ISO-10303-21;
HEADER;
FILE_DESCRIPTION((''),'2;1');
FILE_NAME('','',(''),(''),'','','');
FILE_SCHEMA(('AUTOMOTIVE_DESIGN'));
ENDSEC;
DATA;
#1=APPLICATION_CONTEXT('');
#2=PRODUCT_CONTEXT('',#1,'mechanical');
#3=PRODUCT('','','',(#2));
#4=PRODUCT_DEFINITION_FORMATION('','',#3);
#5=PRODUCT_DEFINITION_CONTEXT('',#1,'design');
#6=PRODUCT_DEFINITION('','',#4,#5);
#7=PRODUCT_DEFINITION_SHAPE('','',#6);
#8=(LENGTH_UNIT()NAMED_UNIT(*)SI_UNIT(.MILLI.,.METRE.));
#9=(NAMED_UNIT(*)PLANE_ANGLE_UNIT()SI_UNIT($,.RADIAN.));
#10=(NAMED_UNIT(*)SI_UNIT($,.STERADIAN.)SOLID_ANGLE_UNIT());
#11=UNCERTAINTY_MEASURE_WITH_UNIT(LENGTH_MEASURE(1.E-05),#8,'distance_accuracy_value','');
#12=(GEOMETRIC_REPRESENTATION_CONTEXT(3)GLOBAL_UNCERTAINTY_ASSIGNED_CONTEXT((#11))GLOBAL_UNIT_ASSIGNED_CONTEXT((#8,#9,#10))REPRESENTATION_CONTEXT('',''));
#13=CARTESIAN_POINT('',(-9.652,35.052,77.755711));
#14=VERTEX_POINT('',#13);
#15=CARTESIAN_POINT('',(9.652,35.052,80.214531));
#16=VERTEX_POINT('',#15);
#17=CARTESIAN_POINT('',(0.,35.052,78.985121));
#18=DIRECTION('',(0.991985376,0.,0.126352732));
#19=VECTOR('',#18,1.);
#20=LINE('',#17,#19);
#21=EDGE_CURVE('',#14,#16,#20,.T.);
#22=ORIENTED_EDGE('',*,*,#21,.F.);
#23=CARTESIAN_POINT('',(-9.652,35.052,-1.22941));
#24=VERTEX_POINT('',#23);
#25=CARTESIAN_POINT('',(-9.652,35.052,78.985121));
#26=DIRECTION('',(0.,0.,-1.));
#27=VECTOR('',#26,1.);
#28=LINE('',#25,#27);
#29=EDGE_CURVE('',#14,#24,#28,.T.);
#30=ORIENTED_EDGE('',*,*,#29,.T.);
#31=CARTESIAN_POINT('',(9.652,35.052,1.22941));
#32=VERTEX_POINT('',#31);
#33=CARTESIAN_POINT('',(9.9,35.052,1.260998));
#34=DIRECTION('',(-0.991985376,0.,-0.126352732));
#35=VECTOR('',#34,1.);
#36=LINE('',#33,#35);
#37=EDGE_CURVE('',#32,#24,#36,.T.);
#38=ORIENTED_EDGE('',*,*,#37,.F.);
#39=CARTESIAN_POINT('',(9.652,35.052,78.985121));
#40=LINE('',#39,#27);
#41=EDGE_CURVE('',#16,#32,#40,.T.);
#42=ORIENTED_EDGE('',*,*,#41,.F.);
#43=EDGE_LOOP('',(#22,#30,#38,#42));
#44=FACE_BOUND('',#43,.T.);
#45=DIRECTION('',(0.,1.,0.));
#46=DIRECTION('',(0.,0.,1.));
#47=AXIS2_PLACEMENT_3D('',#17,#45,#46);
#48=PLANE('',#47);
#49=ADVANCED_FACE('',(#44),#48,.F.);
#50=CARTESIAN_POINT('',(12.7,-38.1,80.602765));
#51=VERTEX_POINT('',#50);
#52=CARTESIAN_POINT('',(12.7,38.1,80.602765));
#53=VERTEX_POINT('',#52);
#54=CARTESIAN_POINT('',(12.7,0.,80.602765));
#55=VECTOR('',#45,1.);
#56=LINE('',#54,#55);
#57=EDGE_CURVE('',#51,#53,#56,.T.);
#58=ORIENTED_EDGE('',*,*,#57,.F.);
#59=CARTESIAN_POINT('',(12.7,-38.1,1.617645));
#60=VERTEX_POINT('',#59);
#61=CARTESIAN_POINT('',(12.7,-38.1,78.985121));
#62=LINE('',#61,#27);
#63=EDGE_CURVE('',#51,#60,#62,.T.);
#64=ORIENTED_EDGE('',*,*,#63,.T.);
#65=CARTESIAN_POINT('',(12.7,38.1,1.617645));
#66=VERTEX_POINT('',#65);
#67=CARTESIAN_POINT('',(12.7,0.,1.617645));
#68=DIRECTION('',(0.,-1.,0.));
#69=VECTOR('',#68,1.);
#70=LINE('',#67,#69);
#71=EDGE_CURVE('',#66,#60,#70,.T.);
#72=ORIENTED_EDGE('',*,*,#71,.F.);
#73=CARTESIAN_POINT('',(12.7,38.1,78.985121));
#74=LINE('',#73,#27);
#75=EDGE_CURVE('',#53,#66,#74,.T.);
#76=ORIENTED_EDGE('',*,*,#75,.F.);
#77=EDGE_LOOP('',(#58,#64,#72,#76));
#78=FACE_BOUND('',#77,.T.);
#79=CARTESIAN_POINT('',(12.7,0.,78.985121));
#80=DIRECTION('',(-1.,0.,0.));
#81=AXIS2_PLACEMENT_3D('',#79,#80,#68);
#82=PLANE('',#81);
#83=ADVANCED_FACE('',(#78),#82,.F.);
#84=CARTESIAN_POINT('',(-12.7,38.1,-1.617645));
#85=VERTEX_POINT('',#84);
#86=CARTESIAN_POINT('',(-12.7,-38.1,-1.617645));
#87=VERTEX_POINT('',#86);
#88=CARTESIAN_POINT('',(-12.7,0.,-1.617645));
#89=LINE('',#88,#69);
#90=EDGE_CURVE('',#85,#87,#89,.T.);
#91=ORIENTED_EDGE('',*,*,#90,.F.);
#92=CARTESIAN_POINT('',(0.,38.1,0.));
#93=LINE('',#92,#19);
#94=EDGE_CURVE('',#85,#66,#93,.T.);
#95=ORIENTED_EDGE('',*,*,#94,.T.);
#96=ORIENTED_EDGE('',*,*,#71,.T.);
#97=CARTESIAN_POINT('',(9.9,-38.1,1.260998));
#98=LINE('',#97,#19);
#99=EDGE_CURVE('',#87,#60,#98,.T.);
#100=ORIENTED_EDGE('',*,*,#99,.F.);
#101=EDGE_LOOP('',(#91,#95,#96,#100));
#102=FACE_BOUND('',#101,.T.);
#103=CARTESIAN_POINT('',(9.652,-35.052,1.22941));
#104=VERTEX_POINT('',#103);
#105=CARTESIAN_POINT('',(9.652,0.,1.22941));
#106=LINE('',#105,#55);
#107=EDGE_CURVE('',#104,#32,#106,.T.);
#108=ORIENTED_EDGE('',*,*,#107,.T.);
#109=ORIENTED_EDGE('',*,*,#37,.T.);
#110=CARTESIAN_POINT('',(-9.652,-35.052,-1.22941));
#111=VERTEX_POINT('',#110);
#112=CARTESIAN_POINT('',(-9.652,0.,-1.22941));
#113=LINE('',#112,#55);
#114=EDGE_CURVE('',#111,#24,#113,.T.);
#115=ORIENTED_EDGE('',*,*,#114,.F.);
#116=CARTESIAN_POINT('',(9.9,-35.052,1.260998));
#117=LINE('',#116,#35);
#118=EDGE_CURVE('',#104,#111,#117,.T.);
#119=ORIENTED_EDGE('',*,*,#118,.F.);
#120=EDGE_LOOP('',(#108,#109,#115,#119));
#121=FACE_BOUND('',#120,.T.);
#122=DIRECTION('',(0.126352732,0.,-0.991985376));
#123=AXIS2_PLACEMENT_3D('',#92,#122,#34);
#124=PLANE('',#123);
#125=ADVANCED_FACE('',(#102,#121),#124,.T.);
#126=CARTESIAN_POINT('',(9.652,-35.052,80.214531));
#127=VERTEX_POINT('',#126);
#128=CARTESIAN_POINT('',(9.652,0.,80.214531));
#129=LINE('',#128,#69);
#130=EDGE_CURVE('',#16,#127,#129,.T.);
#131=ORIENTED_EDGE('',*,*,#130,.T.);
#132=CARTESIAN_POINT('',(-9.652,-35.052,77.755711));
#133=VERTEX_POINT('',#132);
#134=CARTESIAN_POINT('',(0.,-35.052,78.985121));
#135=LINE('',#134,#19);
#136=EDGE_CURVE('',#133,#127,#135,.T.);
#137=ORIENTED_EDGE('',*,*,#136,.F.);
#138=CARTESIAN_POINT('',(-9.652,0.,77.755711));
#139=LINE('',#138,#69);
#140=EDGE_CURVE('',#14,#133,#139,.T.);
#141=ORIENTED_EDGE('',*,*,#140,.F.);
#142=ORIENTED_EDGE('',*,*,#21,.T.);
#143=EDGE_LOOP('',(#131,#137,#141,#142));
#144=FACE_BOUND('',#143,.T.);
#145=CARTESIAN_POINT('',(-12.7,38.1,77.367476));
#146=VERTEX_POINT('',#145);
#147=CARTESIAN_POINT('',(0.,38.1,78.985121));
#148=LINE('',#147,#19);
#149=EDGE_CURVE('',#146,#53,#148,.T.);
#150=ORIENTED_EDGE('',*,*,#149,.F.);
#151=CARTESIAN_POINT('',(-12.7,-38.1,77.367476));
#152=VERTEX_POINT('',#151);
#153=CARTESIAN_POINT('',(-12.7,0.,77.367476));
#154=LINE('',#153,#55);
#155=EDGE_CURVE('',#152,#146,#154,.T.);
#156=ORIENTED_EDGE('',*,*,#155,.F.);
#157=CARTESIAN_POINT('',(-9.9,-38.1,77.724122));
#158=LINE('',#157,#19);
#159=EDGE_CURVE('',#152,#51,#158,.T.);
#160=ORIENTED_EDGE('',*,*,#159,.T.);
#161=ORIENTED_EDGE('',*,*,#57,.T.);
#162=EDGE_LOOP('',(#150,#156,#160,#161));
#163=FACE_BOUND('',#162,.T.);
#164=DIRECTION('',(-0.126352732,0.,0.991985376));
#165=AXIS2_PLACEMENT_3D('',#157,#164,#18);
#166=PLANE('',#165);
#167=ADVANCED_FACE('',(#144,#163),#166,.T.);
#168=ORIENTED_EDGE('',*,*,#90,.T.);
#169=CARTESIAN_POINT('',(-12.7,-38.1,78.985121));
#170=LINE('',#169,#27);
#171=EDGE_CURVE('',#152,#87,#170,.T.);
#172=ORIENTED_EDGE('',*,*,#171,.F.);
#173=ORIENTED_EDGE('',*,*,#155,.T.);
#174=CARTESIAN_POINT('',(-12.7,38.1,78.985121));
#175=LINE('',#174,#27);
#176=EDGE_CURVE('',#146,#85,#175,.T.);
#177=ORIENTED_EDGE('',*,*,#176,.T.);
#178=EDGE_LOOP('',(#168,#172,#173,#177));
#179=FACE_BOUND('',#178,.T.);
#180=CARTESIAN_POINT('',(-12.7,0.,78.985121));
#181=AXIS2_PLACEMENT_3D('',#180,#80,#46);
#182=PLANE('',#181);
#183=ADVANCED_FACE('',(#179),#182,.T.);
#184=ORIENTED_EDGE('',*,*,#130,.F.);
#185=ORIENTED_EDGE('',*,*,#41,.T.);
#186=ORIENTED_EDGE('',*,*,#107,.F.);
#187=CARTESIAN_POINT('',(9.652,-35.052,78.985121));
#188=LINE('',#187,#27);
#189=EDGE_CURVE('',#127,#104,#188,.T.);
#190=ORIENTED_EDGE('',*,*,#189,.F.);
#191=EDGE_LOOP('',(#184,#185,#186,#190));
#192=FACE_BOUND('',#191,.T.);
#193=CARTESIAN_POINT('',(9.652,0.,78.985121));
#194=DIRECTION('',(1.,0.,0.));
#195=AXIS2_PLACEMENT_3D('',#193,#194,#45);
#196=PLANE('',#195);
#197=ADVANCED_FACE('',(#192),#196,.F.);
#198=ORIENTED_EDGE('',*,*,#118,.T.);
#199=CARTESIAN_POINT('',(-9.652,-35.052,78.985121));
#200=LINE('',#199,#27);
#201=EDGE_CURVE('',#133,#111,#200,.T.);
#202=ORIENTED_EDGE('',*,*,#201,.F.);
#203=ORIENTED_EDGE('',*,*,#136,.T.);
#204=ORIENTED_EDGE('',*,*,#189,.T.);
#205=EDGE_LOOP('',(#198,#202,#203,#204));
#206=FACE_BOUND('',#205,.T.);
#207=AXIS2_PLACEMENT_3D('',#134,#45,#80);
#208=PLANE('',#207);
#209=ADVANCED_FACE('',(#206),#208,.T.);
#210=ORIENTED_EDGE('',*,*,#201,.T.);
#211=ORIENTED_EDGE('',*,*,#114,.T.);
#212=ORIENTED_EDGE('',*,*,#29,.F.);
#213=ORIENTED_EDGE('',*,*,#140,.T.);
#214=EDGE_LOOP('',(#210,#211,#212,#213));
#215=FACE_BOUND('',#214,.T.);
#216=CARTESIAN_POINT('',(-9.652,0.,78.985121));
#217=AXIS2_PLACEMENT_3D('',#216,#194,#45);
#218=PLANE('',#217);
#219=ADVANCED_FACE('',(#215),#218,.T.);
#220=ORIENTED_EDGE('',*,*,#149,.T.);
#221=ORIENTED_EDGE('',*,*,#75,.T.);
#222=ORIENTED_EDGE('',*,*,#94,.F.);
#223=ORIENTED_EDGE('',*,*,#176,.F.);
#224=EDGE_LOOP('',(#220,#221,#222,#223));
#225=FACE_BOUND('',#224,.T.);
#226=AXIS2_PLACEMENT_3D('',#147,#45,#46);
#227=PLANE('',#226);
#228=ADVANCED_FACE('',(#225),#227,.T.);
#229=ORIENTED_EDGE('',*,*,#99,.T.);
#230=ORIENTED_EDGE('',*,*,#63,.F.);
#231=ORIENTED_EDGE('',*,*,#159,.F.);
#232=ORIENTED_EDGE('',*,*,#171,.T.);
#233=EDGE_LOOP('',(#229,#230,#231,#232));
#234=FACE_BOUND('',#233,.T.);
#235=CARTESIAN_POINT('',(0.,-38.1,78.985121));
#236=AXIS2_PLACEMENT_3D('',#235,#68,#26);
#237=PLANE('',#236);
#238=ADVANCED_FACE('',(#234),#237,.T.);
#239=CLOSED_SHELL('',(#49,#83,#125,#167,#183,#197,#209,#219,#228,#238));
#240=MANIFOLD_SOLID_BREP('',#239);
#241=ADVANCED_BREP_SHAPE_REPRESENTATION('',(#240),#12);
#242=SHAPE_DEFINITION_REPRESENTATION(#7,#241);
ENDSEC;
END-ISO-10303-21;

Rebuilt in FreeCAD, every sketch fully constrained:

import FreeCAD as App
import Part
import Sketcher

V = App.Vector
Q = App.Units.Quantity


def add_polygon(sketch, points):
    """Adds a closed chain of lines whose ends are joined by coincident constraints."""
    first, n = sketch.GeometryCount, len(points)
    for a, b in zip(points, points[1:] + points[:1]):
        sketch.addGeometry(Part.LineSegment(App.Vector(*a, 0), App.Vector(*b, 0)), False)
    for i in range(n):
        sketch.addConstraint(Sketcher.Constraint("Coincident", first + i, 2, first + (i + 1) % n, 1))

doc = App.newDocument("Part")
body = doc.addObject("PartDesign::Body", "Body")

# Sketch on XY plane
sketch1 = body.newObject("Sketcher::SketchObject", "Sketch")
sketch1.AttachmentSupport = (doc.getObject("XY_Plane"), [""])
sketch1.MapMode = "FlatFace"
add_polygon(sketch1, [(13, 38), (-13, 38), (-13, -38), (13, -38)])  # lines 0-3
add_polygon(sketch1, [(-10, 35), (10, 35), (10, -35), (-10, -35)])  # lines 4-7
sketch1.addConstraint([
    Sketcher.Constraint("Horizontal", 0),
    Sketcher.Constraint("Vertical", 1),
    Sketcher.Constraint("Horizontal", 2),
    Sketcher.Constraint("Vertical", 3),
    Sketcher.Constraint("Horizontal", 4),
    Sketcher.Constraint("Vertical", 5),
    Sketcher.Constraint("Horizontal", 6),
    Sketcher.Constraint("Vertical", 7),
    Sketcher.Constraint("Symmetric", 0, 2, 2, 2, -1, 1),
    Sketcher.Constraint("Symmetric", 4, 2, 6, 2, -1, 1),
    Sketcher.Constraint("DistanceX", 0, 2, 0, 1, Q("1 in")),
    Sketcher.Constraint("DistanceY", 1, 2, 1, 1, Q("3 in")),
    Sketcher.Constraint("DistanceX", 4, 1, 4, 2, Q("0.76 in")),
    Sketcher.Constraint("DistanceY", 5, 2, 5, 1, Q("2.76 in")),
])
pad1 = body.newObject("PartDesign::Pad", "Pad")
pad1.Profile = sketch1
pad1.Length = 78.985121

# Sketch on XY plane
sketch2 = body.newObject("Sketcher::SketchObject", "Sketch001")
sketch2.AttachmentSupport = (doc.getObject("XY_Plane"), [""])
sketch2.MapMode = "FlatFace"
add_polygon(sketch2, [(13, 38), (13, -38), (-13, -38), (-13, 38)])  # lines 0-3
add_polygon(sketch2, [(-10, -35), (10, -35), (10, 35), (-10, 35)])  # lines 4-7
sketch2.addConstraint([
    Sketcher.Constraint("Vertical", 0),
    Sketcher.Constraint("Horizontal", 1),
    Sketcher.Constraint("Vertical", 2),
    Sketcher.Constraint("Horizontal", 3),
    Sketcher.Constraint("Horizontal", 4),
    Sketcher.Constraint("Vertical", 5),
    Sketcher.Constraint("Horizontal", 6),
    Sketcher.Constraint("Vertical", 7),
    Sketcher.Constraint("Symmetric", 0, 2, 2, 2, -1, 1),
    Sketcher.Constraint("Symmetric", 4, 2, 6, 2, -1, 1),
    Sketcher.Constraint("DistanceX", 1, 2, 1, 1, Q("1 in")),
    Sketcher.Constraint("DistanceY", 0, 2, 0, 1, Q("3 in")),
    Sketcher.Constraint("DistanceX", 4, 1, 4, 2, Q("0.76 in")),
    Sketcher.Constraint("DistanceY", 5, 1, 5, 2, Q("2.76 in")),
])
pad2 = body.newObject("PartDesign::Pad", "Pad001")
pad2.Profile = sketch2
pad2.Length = 50
pad2.Reversed = True

# Sketch on XZ plane
sketch3 = body.newObject("Sketcher::SketchObject", "Sketch002")
sketch3.AttachmentSupport = (doc.getObject("XZ_Plane"), [""])
sketch3.MapMode = "FlatFace"
sketch3.AttachmentOffset = App.Placement(V(0, 0, 1.5 * 25.4), App.Rotation())
add_polygon(sketch3, [(-13, -2), (-45, -6), (-38, -64), (46, -54), (38, 5), (13, 2)])  # lines 0-5
sketch3.addConstraint([
    Sketcher.Constraint("Symmetric", 4, 2, 5, 2, -1, 1),
    Sketcher.Constraint("Perpendicular", 0, 1),
    Sketcher.Constraint("Perpendicular", 1, 2),
    Sketcher.Constraint("Perpendicular", 2, 3),
    Sketcher.Constraint("Perpendicular", 3, 4),
    Sketcher.Constraint("Parallel", 4, 5),
    Sketcher.Constraint("DistanceX", 5, 2, 4, 2, Q("1 in")),
    Sketcher.Constraint("Distance", 0, 32.791062),
    Sketcher.Constraint("DistanceX", -1, 1, 2, 2, 45.640292),
    Sketcher.Constraint("DistanceY", -1, 1, 3, 2, 4.861681),
    Sketcher.Constraint("DistanceX", 1, 2, 2, 2, 83.396929),
])
pocket1 = body.newObject("PartDesign::Pocket", "Pocket")
pocket1.Profile = sketch3
pocket1.Type = "ThroughAll"
pocket1.Midplane = True

# Sketch on XY plane
sketch4 = body.newObject("Sketcher::SketchObject", "Sketch003")
sketch4.AttachmentSupport = (doc.getObject("XY_Plane"), [""])
sketch4.MapMode = "FlatFace"
sketch4.AttachmentOffset = App.Placement(V(0, 0, 78.985121), App.Rotation())
add_polygon(sketch4, [(-13, 38), (-13, -38), (13, -38), (13, 38)])  # lines 0-3
add_polygon(sketch4, [(10, -35), (-10, -35), (-10, 35), (10, 35)])  # lines 4-7
sketch4.addConstraint([
    Sketcher.Constraint("Vertical", 0),
    Sketcher.Constraint("Horizontal", 1),
    Sketcher.Constraint("Vertical", 2),
    Sketcher.Constraint("Horizontal", 3),
    Sketcher.Constraint("Horizontal", 4),
    Sketcher.Constraint("Vertical", 5),
    Sketcher.Constraint("Horizontal", 6),
    Sketcher.Constraint("Vertical", 7),
    Sketcher.Constraint("Symmetric", 0, 2, 2, 2, -1, 1),
    Sketcher.Constraint("Symmetric", 4, 2, 6, 2, -1, 1),
    Sketcher.Constraint("DistanceX", 1, 1, 1, 2, Q("1 in")),
    Sketcher.Constraint("DistanceY", 0, 2, 0, 1, Q("3 in")),
    Sketcher.Constraint("DistanceX", 4, 2, 4, 1, Q("0.76 in")),
    Sketcher.Constraint("DistanceY", 5, 1, 5, 2, Q("2.76 in")),
])
pad3 = body.newObject("PartDesign::Pad", "Pad002")
pad3.Profile = sketch4
pad3.Length = 50

# Sketch on XZ plane
sketch5 = body.newObject("Sketcher::SketchObject", "Sketch004")
sketch5.AttachmentSupport = (doc.getObject("XZ_Plane"), [""])
sketch5.MapMode = "FlatFace"
sketch5.AttachmentOffset = App.Placement(V(0, 0, -1.5 * 25.4), App.Rotation())
add_polygon(sketch5, [(12.7, 80.6), (0, 79), (-12.7, 77.4), (-24.4, 75.9), (-12.7, 126.7), (-12.7, 129), (12.7, 129)])  # lines 0-6
sketch5.addConstraint([
    Sketcher.Constraint("Vertical", 4),
    Sketcher.Constraint("Horizontal", 5),
    Sketcher.Constraint("Vertical", 6),
    Sketcher.Constraint("PointOnObject", 0, 2, -2),
    Sketcher.Constraint("Parallel", 0, 1),
    Sketcher.Constraint("Parallel", 1, 2),
    Sketcher.Constraint("Vertical", 1, 2, 3, 2),
    Sketcher.Constraint("Equal", 0, 1),
    Sketcher.Constraint("DistanceX", 5, 1, 5, 2, Q("1 in")),
    Sketcher.Constraint("DistanceY", 0, 2, 4, 2, 50.0),
    Sketcher.Constraint("Distance", 0, 12.802608),
    Sketcher.Constraint("Distance", 3, 52.119622),
    Sketcher.Constraint("DistanceY", 4, 1, 4, 2, 2.317294),
    Sketcher.Constraint("DistanceY", -1, 1, 0, 2, 78.985121),
])
pocket2 = body.newObject("PartDesign::Pocket", "Pocket001")
pocket2.Profile = sketch5
pocket2.Type = "ThroughAll"
pocket2.Midplane = True

doc.recompute()
